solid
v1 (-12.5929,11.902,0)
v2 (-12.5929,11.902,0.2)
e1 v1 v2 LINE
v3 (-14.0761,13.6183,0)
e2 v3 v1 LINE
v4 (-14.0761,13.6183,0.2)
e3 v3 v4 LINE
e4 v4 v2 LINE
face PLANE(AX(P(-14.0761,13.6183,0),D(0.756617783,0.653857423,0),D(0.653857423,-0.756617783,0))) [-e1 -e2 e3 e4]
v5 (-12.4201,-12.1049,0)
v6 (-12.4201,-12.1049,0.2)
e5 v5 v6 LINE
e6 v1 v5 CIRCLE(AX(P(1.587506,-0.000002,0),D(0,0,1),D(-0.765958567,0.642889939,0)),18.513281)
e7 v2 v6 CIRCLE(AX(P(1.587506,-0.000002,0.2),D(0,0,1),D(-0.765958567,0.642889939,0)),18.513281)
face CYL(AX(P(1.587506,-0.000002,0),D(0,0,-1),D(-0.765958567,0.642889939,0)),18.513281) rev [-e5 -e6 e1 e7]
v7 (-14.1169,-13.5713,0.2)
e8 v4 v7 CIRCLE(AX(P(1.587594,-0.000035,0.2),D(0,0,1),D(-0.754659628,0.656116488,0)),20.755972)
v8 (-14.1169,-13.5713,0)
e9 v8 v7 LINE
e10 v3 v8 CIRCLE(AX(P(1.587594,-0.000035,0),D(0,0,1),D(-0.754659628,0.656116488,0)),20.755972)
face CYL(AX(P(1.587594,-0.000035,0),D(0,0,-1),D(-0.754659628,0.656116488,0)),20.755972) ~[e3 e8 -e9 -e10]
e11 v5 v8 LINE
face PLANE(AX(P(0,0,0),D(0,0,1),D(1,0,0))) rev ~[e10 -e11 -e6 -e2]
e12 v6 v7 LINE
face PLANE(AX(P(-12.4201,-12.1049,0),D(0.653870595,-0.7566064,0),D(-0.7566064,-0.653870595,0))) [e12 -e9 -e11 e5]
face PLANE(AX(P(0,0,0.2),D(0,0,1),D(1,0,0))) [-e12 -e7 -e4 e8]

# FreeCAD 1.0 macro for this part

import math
import FreeCAD as App
import Part
import Sketcher
from FreeCAD import Vector
Q = App.Units.Quantity

doc = App.newDocument("Part")
body = doc.addObject("PartDesign::Body", "Body")

# Sketch on XY plane
sketch1 = body.newObject("Sketcher::SketchObject", "Sketch")
sketch1.AttachmentSupport = (doc.getObject("XY_Plane"), [""])
sketch1.MapMode = "FlatFace"
sketch1.addGeometry([
    Part.LineSegment(Vector(-12.6, 11.9, 0), Vector(-14.1, 13.6, 0)),
    Part.ArcOfCircle(Part.Circle(Vector(1.6, 0, 0), Vector(0, 0, 1), 20.8), math.radians(139), math.radians(221)),
    Part.LineSegment(Vector(-14.1, -13.6, 0), Vector(-12.4, -12.1, 0)),
    Part.ArcOfCircle(Part.Circle(Vector(1.6, 0, 0), Vector(0, 0, 1), 18.5), math.radians(140), math.radians(221)),
], False)
sketch1.addConstraint([
    Sketcher.Constraint("Coincident", 0, 2, 1, 1),
    Sketcher.Constraint("Coincident", 1, 2, 2, 1),
    Sketcher.Constraint("Coincident", 2, 2, 3, 2),
    Sketcher.Constraint("Coincident", 3, 1, 0, 1),
    Sketcher.Constraint("Coincident", 3, 3, 1, 3),
    Sketcher.Constraint("PointOnObject", 1, 3, -1),
    Sketcher.Constraint("Perpendicular", 0, 2),
    Sketcher.Constraint("Radius", 1, Q("20.7559 mm")),
    Sketcher.Constraint("Radius", 3, Q("18.5133 mm")),
    Sketcher.Constraint("DistanceX", 2, 2, -1, 1, Q("12.42 mm")),
    Sketcher.Constraint("DistanceX", 0, 2, -1, 1, Q("14.076 mm")),
    Sketcher.Constraint("DistanceY", 2, 2, -1, 1, Q("12.105 mm")),
    Sketcher.Constraint("DistanceX", 3, 1, -1, 1, Q("12.593 mm")),
])
pad1 = body.newObject("PartDesign::Pad", "Pad")
pad1.Profile = sketch1
pad1.Length = 0.2

doc.recompute()
